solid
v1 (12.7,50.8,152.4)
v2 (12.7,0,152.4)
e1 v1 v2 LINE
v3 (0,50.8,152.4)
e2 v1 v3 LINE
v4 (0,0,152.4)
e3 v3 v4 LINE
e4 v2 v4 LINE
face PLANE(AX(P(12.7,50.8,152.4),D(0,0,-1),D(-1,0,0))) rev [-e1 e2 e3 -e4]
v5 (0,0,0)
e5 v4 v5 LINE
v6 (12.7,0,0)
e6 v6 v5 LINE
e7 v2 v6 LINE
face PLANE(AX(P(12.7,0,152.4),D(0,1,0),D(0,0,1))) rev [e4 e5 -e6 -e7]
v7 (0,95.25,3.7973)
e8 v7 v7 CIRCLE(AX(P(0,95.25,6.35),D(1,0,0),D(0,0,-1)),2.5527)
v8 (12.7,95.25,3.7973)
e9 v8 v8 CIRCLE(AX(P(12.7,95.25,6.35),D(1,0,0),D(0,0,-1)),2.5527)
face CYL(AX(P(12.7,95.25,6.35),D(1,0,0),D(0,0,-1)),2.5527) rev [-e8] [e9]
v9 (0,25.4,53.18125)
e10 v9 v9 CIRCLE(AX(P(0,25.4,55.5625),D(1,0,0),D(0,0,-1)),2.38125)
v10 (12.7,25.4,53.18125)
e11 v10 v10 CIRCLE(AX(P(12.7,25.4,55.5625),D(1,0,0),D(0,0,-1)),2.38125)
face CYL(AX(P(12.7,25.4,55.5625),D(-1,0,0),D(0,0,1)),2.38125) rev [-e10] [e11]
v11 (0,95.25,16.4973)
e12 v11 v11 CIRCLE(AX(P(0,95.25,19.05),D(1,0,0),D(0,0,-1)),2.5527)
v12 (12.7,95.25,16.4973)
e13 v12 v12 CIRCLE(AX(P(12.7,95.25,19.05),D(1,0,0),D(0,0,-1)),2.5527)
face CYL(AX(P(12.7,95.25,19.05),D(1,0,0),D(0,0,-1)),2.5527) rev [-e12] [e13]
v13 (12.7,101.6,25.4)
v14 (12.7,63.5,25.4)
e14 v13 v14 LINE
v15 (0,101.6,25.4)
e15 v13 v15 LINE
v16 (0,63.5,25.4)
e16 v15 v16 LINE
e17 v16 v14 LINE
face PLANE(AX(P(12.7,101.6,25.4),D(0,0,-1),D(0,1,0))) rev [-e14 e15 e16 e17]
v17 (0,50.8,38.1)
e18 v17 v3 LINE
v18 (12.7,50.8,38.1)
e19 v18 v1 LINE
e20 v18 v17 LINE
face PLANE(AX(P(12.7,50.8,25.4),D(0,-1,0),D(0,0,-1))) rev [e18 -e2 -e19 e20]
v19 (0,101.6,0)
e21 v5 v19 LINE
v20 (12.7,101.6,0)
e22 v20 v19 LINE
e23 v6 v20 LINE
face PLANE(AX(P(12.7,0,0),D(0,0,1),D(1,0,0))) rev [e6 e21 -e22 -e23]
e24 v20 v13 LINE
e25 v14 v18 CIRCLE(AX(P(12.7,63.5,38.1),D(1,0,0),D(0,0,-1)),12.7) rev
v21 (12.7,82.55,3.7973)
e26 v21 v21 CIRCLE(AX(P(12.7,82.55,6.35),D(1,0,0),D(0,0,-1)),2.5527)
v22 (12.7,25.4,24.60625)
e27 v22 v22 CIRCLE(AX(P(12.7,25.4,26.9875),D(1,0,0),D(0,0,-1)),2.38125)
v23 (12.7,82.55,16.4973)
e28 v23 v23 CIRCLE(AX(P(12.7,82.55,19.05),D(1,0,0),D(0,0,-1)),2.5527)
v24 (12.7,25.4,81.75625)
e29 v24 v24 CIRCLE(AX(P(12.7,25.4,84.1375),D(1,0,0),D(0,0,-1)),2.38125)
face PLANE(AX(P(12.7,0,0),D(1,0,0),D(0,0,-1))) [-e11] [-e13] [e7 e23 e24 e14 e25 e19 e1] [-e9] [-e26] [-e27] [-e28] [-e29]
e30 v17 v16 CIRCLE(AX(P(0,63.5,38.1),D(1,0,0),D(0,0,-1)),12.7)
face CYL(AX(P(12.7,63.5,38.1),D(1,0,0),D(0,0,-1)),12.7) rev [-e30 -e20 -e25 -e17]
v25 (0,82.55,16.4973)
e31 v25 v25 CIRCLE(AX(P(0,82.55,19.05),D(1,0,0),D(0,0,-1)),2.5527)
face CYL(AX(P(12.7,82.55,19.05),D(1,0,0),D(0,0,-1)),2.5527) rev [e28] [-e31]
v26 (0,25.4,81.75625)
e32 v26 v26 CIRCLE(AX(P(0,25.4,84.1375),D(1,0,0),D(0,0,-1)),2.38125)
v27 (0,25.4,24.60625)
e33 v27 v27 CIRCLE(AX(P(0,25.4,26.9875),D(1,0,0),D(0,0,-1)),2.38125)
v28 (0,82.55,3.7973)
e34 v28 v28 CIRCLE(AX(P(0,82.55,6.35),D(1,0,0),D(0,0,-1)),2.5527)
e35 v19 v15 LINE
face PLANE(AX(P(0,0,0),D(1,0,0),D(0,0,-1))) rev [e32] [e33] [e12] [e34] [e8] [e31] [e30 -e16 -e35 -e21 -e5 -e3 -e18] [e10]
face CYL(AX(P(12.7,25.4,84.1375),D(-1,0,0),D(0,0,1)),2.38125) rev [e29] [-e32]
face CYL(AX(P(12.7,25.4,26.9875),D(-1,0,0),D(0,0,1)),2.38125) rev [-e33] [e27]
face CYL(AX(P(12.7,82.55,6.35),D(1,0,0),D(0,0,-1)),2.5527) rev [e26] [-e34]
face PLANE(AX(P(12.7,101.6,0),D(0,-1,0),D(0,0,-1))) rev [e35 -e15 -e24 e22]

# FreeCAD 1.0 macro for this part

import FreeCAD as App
import Part
import Sketcher

V = App.Vector
Q = App.Units.Quantity


def edges_at(feature, points):
    """Names of the edges that pass closest to the given points."""
    edges = feature.Shape.Edges
    near = lambda p: min(range(len(edges)), key=lambda i: edges[i].distToShape(Part.Vertex(*p))[0])
    return sorted({f"Edge{near(p) + 1}" for p in points})

doc = App.newDocument("Part")
body = doc.addObject("PartDesign::Body", "Body")

# Sketch on YZ plane
sketch1 = body.newObject("Sketcher::SketchObject", "Sketch")
sketch1.AttachmentSupport = (doc.getObject("YZ_Plane"), [""])
sketch1.MapMode = "FlatFace"
sketch1.addGeometry([
    Part.LineSegment(V(0, 0, 0), V(101.6, 0, 0)),  # 0
    Part.LineSegment(V(101.6, 0, 0), V(101.6, 25.4, 0)),  # 1
    Part.LineSegment(V(101.6, 25.4, 0), V(50.8, 25.4, 0)),  # 2
    Part.LineSegment(V(50.8, 25.4, 0), V(50.8, 152.4, 0)),  # 3
    Part.LineSegment(V(50.8, 152.4, 0), V(0, 152.4, 0)),  # 4
    Part.LineSegment(V(0, 152.4, 0), V(0, 0, 0)),  # 5
    Part.Circle(V(25.4, 84.1375, 0), V(0, 0, 1), 2.38125),  # 6
    Part.Circle(V(25.4, 55.5625, 0), V(0, 0, 1), 2.38125),  # 7
    Part.Circle(V(25.4, 26.9875, 0), V(0, 0, 1), 2.38125),  # 8
], False)
sketch1.addConstraint([
    Sketcher.Constraint("Coincident", 0, 2, 1, 1),
    Sketcher.Constraint("Coincident", 1, 2, 2, 1),
    Sketcher.Constraint("Coincident", 2, 2, 3, 1),
    Sketcher.Constraint("Coincident", 3, 2, 4, 1),
    Sketcher.Constraint("Coincident", 4, 2, 5, 1),
    Sketcher.Constraint("Coincident", 5, 2, 0, 1),
    Sketcher.Constraint("Horizontal", 0),
    Sketcher.Constraint("Vertical", 1),
    Sketcher.Constraint("Horizontal", 2),
    Sketcher.Constraint("Vertical", 3),
    Sketcher.Constraint("Horizontal", 4),
    Sketcher.Constraint("Vertical", 5),
    Sketcher.Constraint("Coincident", 5, 2, -1, 1),
    Sketcher.Constraint("Equal", 6, 7),
    Sketcher.Constraint("Equal", 7, 8),
    Sketcher.Constraint("Vertical", 6, 3, 7, 3),
    Sketcher.Constraint("Vertical", 7, 3, 8, 3),
    Sketcher.Constraint("Equal", 2, 4),
    Sketcher.Constraint("DistanceX", 0, 1, 0, 2, Q("4 in")),
    Sketcher.Constraint("DistanceY", 1, 1, 1, 2, Q("1 in")),
    Sketcher.Constraint("DistanceY", 3, 1, 3, 2, Q("5 in")),
    Sketcher.Constraint("Diameter", 6, Q("0.1875 in")),
    Sketcher.Constraint("DistanceX", -1, 1, 6, 3, Q("1 in")),
    Sketcher.Constraint("DistanceY", 8, 3, 6, 3, Q("2.25 in")),
    Sketcher.Constraint("DistanceY", -1, 1, 6, 3, Q("3.3125 in")),
    Sketcher.Constraint("DistanceY", -1, 1, 7, 3, Q("2.1875 in")),
])
pad1 = body.newObject("PartDesign::Pad", "Pad")
pad1.Profile = sketch1
pad1.Length = Q("0.5 in")

# Sketch on YZ plane
sketch2 = body.newObject("Sketcher::SketchObject", "Sketch001")
sketch2.AttachmentSupport = (doc.getObject("YZ_Plane"), [""])
sketch2.MapMode = "FlatFace"
sketch2.AttachmentOffset = App.Placement(V(0, 0, 0.5 * 25.4), App.Rotation())
sketch2.addGeometry([
    Part.Circle(V(95.25, 19.05, 0), V(0, 0, 1), 2.5527),
    Part.Circle(V(95.25, 6.35, 0), V(0, 0, 1), 2.5527),
    Part.Circle(V(82.55, 6.35, 0), V(0, 0, 1), 2.5527),
    Part.Circle(V(82.55, 19.05, 0), V(0, 0, 1), 2.5527),
], False)
sketch2.addConstraint([
    Sketcher.Constraint("Equal", 0, 1),
    Sketcher.Constraint("Equal", 1, 2),
    Sketcher.Constraint("Equal", 2, 3),
    Sketcher.Constraint("Horizontal", 1, 3, 2, 3),
    Sketcher.Constraint("Horizontal", 0, 3, 3, 3),
    Sketcher.Constraint("Vertical", 0, 3, 1, 3),
    Sketcher.Constraint("Vertical", 2, 3, 3, 3),
    Sketcher.Constraint("Diameter", 0, Q("0.201 in")),
    Sketcher.Constraint("DistanceY", 1, 3, 0, 3, Q("0.5 in")),
    Sketcher.Constraint("DistanceX", 2, 3, 1, 3, Q("0.5 in")),
    Sketcher.Constraint("DistanceX", -1, 1, 0, 3, Q("3.75 in")),
    Sketcher.Constraint("DistanceY", -1, 1, 0, 3, Q("0.75 in")),
])
doc.recompute()
hole = body.newObject("PartDesign::Hole", "Hole")
hole.Profile = sketch2
hole.ThreadType = "None"
hole.Diameter = Q("0.201 in")
hole.DepthType = "ThroughAll"
doc.recompute()

fillet = body.newObject("PartDesign::Fillet", "Fillet")
fillet.Base = (hole, edges_at(hole, [(6.35, 50.8, 25.4)]))
fillet.Radius = Q("0.5 in")

doc.recompute()
